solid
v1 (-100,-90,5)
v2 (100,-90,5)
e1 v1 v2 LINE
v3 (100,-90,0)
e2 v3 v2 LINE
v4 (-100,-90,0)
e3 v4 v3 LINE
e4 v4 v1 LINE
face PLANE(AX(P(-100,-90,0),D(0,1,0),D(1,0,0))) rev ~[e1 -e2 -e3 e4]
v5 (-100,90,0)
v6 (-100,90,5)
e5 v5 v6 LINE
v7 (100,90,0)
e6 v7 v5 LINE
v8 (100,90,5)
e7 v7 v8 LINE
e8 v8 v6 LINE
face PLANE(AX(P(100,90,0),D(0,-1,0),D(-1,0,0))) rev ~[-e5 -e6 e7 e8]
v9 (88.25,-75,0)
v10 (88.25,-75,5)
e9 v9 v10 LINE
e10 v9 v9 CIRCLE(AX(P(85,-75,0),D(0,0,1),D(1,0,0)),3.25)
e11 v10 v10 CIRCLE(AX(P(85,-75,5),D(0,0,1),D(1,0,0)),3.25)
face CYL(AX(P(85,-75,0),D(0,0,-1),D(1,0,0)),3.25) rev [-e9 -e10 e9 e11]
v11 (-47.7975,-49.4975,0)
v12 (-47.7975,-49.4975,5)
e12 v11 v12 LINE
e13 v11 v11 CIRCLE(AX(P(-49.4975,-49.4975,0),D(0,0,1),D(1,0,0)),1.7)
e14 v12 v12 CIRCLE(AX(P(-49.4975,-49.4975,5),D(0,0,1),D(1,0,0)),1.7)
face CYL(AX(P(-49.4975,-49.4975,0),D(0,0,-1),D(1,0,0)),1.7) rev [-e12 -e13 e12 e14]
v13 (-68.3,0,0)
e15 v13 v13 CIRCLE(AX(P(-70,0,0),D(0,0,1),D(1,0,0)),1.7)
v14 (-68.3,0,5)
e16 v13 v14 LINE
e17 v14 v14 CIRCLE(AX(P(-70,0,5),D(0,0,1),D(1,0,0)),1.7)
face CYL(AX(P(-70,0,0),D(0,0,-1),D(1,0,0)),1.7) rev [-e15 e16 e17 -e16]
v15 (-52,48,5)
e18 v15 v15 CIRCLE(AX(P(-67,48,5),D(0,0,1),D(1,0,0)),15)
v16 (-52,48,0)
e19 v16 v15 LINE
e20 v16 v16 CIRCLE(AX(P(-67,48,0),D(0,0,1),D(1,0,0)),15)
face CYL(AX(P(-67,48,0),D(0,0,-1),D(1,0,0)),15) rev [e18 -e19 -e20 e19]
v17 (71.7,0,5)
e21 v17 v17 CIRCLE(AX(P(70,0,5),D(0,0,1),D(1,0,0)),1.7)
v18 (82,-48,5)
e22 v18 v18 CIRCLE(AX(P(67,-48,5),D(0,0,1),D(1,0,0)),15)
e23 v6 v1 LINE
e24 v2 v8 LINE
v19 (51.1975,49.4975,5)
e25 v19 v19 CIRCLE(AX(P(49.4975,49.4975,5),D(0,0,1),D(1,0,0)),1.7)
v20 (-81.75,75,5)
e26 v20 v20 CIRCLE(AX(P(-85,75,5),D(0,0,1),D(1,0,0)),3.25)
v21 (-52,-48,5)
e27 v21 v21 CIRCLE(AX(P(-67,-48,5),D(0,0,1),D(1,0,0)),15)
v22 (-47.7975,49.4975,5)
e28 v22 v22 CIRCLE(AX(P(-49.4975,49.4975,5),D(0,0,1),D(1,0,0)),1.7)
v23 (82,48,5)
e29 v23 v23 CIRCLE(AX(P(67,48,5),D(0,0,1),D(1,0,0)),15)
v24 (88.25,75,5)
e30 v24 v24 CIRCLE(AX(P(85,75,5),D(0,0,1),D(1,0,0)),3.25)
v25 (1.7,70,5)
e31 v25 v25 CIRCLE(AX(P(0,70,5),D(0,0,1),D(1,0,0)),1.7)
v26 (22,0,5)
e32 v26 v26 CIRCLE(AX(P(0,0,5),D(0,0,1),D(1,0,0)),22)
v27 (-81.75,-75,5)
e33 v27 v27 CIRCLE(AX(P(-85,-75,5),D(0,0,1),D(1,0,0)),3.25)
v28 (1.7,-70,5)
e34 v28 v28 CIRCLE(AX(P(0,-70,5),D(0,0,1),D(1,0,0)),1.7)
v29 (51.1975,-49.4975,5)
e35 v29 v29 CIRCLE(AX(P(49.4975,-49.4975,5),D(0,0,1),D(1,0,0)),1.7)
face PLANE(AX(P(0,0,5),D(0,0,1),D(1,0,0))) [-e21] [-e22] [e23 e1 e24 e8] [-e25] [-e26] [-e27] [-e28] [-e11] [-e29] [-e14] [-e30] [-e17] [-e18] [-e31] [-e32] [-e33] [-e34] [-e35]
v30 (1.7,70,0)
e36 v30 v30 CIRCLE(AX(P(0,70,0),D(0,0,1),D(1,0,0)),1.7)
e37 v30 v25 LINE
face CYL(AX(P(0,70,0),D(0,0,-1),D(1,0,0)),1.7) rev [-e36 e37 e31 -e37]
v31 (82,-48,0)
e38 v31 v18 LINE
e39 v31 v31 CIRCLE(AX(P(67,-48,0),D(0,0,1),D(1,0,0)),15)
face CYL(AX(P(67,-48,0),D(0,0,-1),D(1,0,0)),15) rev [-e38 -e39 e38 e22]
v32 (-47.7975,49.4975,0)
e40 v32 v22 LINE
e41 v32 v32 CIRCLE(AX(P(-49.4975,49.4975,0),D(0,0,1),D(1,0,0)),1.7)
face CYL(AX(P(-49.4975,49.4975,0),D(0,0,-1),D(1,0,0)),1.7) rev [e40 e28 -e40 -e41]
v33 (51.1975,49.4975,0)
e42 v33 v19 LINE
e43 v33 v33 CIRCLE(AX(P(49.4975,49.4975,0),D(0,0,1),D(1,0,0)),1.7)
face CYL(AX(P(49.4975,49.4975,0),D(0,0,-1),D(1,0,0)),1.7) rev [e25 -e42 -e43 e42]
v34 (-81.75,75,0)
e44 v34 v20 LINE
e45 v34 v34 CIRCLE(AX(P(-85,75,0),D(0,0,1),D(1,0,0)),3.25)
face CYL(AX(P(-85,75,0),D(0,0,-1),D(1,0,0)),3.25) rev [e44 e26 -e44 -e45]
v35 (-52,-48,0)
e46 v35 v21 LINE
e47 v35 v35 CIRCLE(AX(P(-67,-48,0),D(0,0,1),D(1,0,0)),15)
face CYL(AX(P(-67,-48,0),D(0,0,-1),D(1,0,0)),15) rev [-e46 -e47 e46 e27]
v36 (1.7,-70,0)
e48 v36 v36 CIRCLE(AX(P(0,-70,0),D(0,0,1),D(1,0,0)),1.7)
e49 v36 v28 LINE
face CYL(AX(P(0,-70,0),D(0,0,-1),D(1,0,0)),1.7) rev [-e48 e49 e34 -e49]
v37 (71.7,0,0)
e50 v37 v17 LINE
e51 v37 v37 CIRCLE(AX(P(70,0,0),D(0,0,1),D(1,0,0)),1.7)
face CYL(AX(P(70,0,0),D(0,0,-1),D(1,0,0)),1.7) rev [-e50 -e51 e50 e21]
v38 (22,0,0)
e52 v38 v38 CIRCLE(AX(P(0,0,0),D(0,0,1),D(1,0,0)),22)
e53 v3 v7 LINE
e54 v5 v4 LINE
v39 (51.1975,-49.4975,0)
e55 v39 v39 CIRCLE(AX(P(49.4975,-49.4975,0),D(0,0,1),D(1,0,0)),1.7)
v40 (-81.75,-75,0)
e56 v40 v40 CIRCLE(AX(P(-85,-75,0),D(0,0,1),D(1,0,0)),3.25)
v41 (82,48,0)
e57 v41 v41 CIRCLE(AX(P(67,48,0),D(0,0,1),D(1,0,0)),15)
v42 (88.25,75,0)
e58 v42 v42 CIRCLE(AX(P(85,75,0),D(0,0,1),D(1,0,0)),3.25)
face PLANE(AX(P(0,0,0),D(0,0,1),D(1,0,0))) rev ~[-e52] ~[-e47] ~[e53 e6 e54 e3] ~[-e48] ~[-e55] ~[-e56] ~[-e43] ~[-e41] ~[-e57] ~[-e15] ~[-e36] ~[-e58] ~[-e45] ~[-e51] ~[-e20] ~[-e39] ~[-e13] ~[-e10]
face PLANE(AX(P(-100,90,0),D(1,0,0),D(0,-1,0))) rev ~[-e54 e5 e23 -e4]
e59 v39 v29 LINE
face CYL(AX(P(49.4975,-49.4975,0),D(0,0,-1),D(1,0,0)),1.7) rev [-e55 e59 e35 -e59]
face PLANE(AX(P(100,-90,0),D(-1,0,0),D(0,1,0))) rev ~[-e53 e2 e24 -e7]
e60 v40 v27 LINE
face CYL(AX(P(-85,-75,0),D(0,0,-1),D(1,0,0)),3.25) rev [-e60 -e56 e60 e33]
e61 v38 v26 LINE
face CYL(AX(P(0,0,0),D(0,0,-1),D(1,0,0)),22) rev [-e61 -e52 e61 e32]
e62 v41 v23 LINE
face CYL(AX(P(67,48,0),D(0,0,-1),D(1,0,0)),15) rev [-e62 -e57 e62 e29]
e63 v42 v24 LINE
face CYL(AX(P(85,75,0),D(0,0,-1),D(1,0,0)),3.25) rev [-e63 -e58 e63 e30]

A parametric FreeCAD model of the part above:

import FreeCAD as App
import Part
import Sketcher

V = App.Vector
Q = App.Units.Quantity

doc = App.newDocument("Part")
body = doc.addObject("PartDesign::Body", "Body")

# Sketch on XY plane
sketch1 = body.newObject("Sketcher::SketchObject", "Sketch")
sketch1.AttachmentSupport = (doc.getObject("XY_Plane"), [""])
sketch1.MapMode = "FlatFace"
sketch1.addGeometry([
    Part.LineSegment(V(-100, 90, 0), V(-100, -90, 0)),  # 0
    Part.LineSegment(V(-100, -90, 0), V(100, -90, 0)),  # 1
    Part.LineSegment(V(100, -90, 0), V(100, 90, 0)),  # 2
    Part.LineSegment(V(100, 90, 0), V(-100, 90, 0)),  # 3
    Part.Circle(V(-85, -75, 0), V(0, 0, 1), 3.25),  # 4
    Part.Circle(V(-67, -48, 0), V(0, 0, 1), 15),  # 5
    Part.Circle(V(-49.4975, -49.4975, 0), V(0, 0, 1), 1.7),  # 6
    Part.Circle(V(0, -70, 0), V(0, 0, 1), 1.7),  # 7
    Part.Circle(V(49.4975, -49.4975, 0), V(0, 0, 1), 1.7),  # 8
    Part.Circle(V(85, -75, 0), V(0, 0, 1), 3.25),  # 9
    Part.Circle(V(67, -48, 0), V(0, 0, 1), 15),  # 10
    Part.Circle(V(-70, 0, 0), V(0, 0, 1), 1.7),  # 11
    Part.Circle(V(-67, 48, 0), V(0, 0, 1), 15),  # 12
    Part.Circle(V(-85, 75, 0), V(0, 0, 1), 3.25),  # 13
    Part.Circle(V(-49.4975, 49.4975, 0), V(0, 0, 1), 1.7),  # 14
    Part.Circle(V(0, 0, 0), V(0, 0, 1), 22),  # 15
    Part.Circle(V(70, 0, 0), V(0, 0, 1), 1.7),  # 16
    Part.Circle(V(49.4975, 49.4975, 0), V(0, 0, 1), 1.7),  # 17
    Part.Circle(V(0, 70, 0), V(0, 0, 1), 1.7),  # 18
    Part.Circle(V(67, 48, 0), V(0, 0, 1), 15),  # 19
    Part.Circle(V(85, 75, 0), V(0, 0, 1), 3.25),  # 20
], False)
sketch1.addConstraint([
    Sketcher.Constraint("Coincident", 0, 2, 1, 1),
    Sketcher.Constraint("Coincident", 1, 2, 2, 1),
    Sketcher.Constraint("Coincident", 2, 2, 3, 1),
    Sketcher.Constraint("Coincident", 3, 2, 0, 1),
    Sketcher.Constraint("Vertical", 0),
    Sketcher.Constraint("Horizontal", 1),
    Sketcher.Constraint("Vertical", 2),
    Sketcher.Constraint("Horizontal", 3),
    Sketcher.Constraint("Coincident", 15, 3, -1, 1),
    Sketcher.Constraint("Equal", 6, 7),
    Sketcher.Constraint("Equal", 7, 8),
    Sketcher.Constraint("Equal", 4, 9),
    Sketcher.Constraint("Equal", 5, 10),
    Sketcher.Constraint("Equal", 8, 11),
    Sketcher.Constraint("Equal", 10, 12),
    Sketcher.Constraint("Equal", 9, 13),
    Sketcher.Constraint("Equal", 11, 14),
    Sketcher.Constraint("Equal", 14, 16),
    Sketcher.Constraint("Equal", 16, 17),
    Sketcher.Constraint("Equal", 17, 18),
    Sketcher.Constraint("Equal", 12, 19),
    Sketcher.Constraint("Equal", 13, 20),
    Sketcher.Constraint("Symmetric", 10, 3, 12, 3, -1, 1),
    Sketcher.Constraint("Symmetric", 9, 3, 13, 3, -1, 1),
    Sketcher.Constraint("Symmetric", 8, 3, 14, 3, -1, 1),
    Sketcher.Constraint("Symmetric", 11, 3, 16, 3, -1, 1),
    Sketcher.Constraint("Symmetric", 6, 3, 17, 3, -1, 1),
    Sketcher.Constraint("Symmetric", 7, 3, 18, 3, -1, 1),
    Sketcher.Constraint("Symmetric", 5, 3, 19, 3, -1, 1),
    Sketcher.Constraint("Symmetric", 4, 3, 20, 3, -1, 1),
    Sketcher.Constraint("Symmetric", 0, 2, 2, 2, -1, 1),
    Sketcher.Constraint("Symmetric", 6, 3, 8, 3, -2),
    Sketcher.Constraint("Symmetric", 4, 3, 9, 3, -2),
    Sketcher.Constraint("Symmetric", 5, 3, 10, 3, -2),
    Sketcher.Constraint("PointOnObject", 7, 3, -2),
    Sketcher.Constraint("PointOnObject", 11, 3, -1),
    Sketcher.Constraint("Diameter", 5, Q("30 mm")),
    Sketcher.Constraint("Diameter", 15, Q("44 mm")),
    Sketcher.Constraint("Diameter", 4, Q("6.5 mm")),
    Sketcher.Constraint("Diameter", 6, Q("3.4 mm")),
    Sketcher.Constraint("DistanceX", 1, 1, 1, 2, Q("200 mm")),
    Sketcher.Constraint("DistanceY", 0, 2, 0, 1, Q("180 mm")),
    Sketcher.Constraint("DistanceX", 4, 3, -1, 1, Q("85 mm")),
    Sketcher.Constraint("DistanceY", 4, 3, -1, 1, Q("75 mm")),
    Sketcher.Constraint("DistanceX", 5, 3, -1, 1, Q("67 mm")),
    Sketcher.Constraint("DistanceY", 5, 3, -1, 1, Q("48 mm")),
    Sketcher.Constraint("DistanceY", 7, 3, -1, 1, Q("70 mm")),
    Sketcher.Constraint("DistanceX", 11, 3, -1, 1, Q("70 mm")),
    Sketcher.Constraint("DistanceX", 6, 3, 8, 3, Q("98.995 mm")),
    Sketcher.Constraint("DistanceY", 6, 3, 14, 3, Q("98.995 mm")),
])
pad1 = body.newObject("PartDesign::Pad", "Pad")
pad1.Profile = sketch1
pad1.Length = 5

doc.recompute()
